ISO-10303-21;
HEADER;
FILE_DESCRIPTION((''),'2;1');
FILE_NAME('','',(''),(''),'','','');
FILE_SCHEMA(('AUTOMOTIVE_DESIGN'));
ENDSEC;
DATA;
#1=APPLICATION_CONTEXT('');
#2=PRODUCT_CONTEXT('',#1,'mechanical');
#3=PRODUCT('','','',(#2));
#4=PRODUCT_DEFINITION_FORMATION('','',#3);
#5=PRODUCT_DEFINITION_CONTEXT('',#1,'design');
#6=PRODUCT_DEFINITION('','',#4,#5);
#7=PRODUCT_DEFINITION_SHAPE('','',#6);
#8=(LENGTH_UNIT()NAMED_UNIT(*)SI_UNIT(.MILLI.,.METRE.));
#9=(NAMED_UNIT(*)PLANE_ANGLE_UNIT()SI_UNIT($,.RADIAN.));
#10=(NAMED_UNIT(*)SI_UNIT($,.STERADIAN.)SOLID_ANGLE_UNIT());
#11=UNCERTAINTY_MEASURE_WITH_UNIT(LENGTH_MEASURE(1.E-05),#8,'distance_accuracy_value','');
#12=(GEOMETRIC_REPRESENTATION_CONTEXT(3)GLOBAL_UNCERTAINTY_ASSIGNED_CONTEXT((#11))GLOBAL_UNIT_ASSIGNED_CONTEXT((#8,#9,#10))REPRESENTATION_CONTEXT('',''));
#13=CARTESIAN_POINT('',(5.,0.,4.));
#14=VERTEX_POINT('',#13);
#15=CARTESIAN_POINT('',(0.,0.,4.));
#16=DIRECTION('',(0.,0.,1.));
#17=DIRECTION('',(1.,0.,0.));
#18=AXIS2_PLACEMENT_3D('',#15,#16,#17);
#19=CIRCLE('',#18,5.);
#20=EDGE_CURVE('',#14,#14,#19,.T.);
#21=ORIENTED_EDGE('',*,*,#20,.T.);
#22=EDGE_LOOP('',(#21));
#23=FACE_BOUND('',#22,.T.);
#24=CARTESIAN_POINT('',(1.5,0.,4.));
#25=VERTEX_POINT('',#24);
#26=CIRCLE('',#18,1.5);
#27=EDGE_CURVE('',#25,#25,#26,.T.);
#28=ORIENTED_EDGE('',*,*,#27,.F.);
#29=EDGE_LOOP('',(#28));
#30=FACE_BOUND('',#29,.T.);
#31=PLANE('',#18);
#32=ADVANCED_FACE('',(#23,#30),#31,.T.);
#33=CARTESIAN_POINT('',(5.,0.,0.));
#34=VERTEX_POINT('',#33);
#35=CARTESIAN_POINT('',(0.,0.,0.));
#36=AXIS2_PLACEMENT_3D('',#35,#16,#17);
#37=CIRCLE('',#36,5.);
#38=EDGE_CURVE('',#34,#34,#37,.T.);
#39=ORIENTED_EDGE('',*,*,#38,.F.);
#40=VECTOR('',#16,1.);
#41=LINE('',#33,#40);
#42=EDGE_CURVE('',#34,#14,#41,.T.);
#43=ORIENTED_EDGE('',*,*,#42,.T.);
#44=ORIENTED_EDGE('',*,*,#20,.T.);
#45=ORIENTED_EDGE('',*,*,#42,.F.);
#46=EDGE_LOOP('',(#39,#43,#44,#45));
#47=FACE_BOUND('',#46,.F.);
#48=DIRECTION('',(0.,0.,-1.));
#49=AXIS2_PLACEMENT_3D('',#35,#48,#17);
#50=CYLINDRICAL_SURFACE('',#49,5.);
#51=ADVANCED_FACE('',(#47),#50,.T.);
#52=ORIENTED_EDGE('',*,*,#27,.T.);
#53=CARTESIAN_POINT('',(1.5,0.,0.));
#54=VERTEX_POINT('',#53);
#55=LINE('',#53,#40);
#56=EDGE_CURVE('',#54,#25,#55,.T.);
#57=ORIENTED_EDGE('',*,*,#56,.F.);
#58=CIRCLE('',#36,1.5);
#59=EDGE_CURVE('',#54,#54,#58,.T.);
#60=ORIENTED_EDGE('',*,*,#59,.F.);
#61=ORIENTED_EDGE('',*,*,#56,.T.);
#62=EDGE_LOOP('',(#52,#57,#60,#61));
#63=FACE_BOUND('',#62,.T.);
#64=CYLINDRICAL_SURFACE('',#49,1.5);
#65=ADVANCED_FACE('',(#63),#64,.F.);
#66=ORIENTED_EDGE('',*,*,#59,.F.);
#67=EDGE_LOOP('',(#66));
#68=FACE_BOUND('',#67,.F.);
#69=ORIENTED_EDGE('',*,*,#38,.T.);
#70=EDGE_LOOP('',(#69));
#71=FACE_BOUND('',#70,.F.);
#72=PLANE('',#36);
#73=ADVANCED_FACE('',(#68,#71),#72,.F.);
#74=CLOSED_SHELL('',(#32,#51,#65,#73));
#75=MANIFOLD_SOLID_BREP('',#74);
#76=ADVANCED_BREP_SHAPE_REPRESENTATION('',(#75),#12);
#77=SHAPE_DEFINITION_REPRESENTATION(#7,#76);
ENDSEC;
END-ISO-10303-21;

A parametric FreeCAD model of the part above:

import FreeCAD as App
import Part
import Sketcher
Q = App.Units.Quantity

doc = App.newDocument("Part")
body = doc.addObject("PartDesign::Body", "Body")

sketch1 = doc.addObject("Sketcher::SketchObject", "Sketch")
body.addObject(sketch1)
sketch1.AttachmentSupport = (doc.XY_Plane, [""])
sketch1.MapMode = "FlatFace"
sketch1.addGeometry(Part.Circle(App.Vector(0, 0, 0), App.Vector(0, 0, 1), 5), False)
sketch1.addGeometry(Part.Circle(App.Vector(0, 0, 0), App.Vector(0, 0, 1), 1.5), False)
sketch1.addConstraint(Sketcher.Constraint("Coincident", 0, 3, -1, 1))
sketch1.addConstraint(Sketcher.Constraint("Coincident", 1, 3, -1, 1))
sketch1.addConstraint(Sketcher.Constraint("Diameter", 0, Q("10 mm")))
sketch1.addConstraint(Sketcher.Constraint("Diameter", 1, Q("3 mm")))
pad1 = doc.addObject("PartDesign::Pad", "Pad")
body.addObject(pad1)
pad1.Profile = sketch1
pad1.Length = 4

doc.recompute()
